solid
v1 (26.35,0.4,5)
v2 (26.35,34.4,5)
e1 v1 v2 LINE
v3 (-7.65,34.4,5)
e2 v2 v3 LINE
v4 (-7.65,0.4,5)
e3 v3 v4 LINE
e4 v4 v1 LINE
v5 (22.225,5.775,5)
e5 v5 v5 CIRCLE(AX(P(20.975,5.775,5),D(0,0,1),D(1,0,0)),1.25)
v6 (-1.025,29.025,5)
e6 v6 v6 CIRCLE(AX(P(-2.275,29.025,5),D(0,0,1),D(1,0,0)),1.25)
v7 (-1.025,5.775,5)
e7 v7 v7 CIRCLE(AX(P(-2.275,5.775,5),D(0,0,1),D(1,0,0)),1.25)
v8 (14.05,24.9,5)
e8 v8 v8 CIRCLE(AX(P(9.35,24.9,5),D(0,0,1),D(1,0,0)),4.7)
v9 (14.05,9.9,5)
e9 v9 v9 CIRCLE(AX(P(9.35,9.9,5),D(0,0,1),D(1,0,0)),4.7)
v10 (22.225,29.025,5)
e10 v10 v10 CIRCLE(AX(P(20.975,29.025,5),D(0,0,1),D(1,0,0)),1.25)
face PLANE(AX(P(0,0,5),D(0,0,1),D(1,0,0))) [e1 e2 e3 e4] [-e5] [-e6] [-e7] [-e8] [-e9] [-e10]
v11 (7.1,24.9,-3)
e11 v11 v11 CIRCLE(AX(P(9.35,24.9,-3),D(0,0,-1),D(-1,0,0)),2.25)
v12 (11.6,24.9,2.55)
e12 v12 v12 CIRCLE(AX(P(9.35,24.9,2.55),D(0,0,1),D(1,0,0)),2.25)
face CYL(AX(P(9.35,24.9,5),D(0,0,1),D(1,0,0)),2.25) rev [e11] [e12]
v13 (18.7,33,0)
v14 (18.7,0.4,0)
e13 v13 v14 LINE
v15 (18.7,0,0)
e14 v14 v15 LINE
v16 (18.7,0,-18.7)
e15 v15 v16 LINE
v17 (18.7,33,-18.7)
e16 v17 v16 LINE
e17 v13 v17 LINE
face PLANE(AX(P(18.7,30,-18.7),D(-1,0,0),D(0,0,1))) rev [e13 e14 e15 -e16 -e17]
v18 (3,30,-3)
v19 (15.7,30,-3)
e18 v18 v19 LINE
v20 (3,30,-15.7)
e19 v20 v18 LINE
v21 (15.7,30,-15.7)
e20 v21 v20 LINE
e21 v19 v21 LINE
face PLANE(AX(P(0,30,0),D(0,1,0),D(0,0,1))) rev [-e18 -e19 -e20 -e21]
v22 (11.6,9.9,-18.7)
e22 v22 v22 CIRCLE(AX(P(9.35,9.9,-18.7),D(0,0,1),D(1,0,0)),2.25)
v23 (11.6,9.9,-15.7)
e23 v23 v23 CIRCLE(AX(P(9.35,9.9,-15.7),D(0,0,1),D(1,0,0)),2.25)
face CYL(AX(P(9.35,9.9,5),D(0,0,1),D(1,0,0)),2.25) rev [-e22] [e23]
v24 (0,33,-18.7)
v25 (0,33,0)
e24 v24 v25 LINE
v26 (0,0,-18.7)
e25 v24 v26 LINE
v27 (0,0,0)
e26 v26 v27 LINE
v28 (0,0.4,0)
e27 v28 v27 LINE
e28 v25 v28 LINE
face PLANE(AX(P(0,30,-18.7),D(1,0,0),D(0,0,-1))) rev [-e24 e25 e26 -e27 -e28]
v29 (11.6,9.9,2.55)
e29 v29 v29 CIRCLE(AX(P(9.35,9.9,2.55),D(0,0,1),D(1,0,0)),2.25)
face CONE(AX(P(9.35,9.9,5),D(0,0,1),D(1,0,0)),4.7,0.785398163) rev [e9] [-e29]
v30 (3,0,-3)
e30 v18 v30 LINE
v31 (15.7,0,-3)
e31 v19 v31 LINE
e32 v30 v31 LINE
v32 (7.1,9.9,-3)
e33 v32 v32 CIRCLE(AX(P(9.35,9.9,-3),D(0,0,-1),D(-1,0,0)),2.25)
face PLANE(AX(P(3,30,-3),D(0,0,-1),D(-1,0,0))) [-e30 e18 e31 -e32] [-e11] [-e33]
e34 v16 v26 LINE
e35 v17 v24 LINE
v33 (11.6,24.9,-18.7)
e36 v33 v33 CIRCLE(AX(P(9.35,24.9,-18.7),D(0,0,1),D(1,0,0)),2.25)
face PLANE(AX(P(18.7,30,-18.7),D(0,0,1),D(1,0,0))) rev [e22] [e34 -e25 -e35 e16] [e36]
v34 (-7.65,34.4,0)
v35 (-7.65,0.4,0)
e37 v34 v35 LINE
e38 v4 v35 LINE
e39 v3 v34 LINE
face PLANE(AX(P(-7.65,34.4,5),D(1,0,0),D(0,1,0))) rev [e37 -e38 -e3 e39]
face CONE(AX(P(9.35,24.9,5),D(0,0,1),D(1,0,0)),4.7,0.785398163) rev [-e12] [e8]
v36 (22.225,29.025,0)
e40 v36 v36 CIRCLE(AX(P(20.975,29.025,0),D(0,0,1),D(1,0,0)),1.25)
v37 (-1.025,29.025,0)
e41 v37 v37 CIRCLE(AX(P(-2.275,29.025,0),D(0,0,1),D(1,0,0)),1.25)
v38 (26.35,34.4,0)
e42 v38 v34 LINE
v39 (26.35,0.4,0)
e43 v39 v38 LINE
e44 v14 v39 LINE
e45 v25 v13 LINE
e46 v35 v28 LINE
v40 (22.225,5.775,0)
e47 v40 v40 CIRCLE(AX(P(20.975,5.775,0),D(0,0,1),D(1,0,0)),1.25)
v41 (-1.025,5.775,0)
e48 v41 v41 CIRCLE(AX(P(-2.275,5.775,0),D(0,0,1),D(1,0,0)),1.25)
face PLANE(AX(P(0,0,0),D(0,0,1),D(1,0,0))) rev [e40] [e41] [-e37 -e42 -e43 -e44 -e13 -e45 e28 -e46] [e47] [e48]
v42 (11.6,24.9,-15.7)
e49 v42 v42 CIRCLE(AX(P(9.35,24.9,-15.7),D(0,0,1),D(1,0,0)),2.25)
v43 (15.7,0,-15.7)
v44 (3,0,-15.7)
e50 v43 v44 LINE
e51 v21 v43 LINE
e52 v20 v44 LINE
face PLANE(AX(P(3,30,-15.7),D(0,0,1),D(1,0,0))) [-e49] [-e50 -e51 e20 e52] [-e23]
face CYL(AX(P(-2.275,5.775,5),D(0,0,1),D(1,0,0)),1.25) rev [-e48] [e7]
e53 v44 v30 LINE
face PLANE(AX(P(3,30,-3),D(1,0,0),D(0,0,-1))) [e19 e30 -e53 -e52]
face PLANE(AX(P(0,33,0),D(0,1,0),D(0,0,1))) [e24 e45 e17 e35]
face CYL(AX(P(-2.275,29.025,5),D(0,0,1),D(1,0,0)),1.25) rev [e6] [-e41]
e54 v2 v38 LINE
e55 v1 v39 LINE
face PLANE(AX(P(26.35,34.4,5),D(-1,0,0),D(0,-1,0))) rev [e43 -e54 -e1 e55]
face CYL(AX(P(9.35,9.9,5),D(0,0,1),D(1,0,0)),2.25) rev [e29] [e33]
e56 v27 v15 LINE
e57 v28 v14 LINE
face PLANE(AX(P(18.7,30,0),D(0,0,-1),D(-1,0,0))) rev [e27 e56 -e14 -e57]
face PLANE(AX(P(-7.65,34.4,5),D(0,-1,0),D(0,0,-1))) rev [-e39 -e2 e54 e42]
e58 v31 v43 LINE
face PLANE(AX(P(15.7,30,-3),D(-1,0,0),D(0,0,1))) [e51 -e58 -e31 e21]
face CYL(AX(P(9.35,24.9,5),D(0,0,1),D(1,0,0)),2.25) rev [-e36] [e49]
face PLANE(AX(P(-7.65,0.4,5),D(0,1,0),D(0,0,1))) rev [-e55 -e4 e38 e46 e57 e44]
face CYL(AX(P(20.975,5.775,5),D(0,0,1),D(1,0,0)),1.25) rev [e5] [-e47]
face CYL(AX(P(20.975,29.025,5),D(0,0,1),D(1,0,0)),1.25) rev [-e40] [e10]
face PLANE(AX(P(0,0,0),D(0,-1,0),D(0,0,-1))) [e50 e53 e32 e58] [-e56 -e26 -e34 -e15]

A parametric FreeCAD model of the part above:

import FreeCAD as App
import Part
import Sketcher
Q = App.Units.Quantity


def add_polygon(sketch, points):
    """Adds a closed chain of lines whose ends are joined by coincident constraints."""
    first, n = sketch.GeometryCount, len(points)
    for a, b in zip(points, points[1:] + points[:1]):
        sketch.addGeometry(Part.LineSegment(App.Vector(*a, 0), App.Vector(*b, 0)), False)
    for i in range(n):
        sketch.addConstraint(Sketcher.Constraint("Coincident", first + i, 2, first + (i + 1) % n, 1))

doc = App.newDocument("Part")
body = doc.addObject("PartDesign::Body", "Body")

# Sketch on XZ plane
sketch1 = body.newObject("Sketcher::SketchObject", "Sketch")
sketch1.AttachmentSupport = (doc.getObject("XZ_Plane"), [""])
sketch1.MapMode = "FlatFace"
add_polygon(sketch1, [(0, -18.7), (0, 0), (18.7, 0), (18.7, -18.7)])  # lines 0-3
add_polygon(sketch1, [(15.7, -3), (3, -3), (3, -15.7), (15.7, -15.7)])  # lines 4-7
sketch1.addConstraint([
    Sketcher.Constraint("Vertical", 0),
    Sketcher.Constraint("Horizontal", 1),
    Sketcher.Constraint("Vertical", 2),
    Sketcher.Constraint("Horizontal", 3),
    Sketcher.Constraint("Horizontal", 4),
    Sketcher.Constraint("Vertical", 5),
    Sketcher.Constraint("Horizontal", 6),
    Sketcher.Constraint("Vertical", 7),
    Sketcher.Constraint("Coincident", 0, 2, -1, 1),
    Sketcher.Constraint("Equal", 3, 0),
    Sketcher.Constraint("Equal", 6, 5),
    Sketcher.Constraint("DistanceX", 1, 1, 1, 2, Q("18.7 mm")),
    Sketcher.Constraint("DistanceX", 4, 2, 4, 1, Q("12.7 mm")),
    Sketcher.Constraint("DistanceX", -1, 1, 4, 2, Q("3 mm")),
    Sketcher.Constraint("DistanceY", 4, 2, -1, 1, Q("3 mm")),
])
pad1 = body.newObject("PartDesign::Pad", "Pad")
pad1.Profile = sketch1
pad1.Length = 30
pad1.Reversed = True

# Sketch on XZ plane
sketch2 = body.newObject("Sketcher::SketchObject", "Sketch001")
sketch2.AttachmentSupport = (doc.getObject("XZ_Plane"), [""])
sketch2.MapMode = "FlatFace"
sketch2.AttachmentOffset = App.Placement(App.Vector(0, 0, -30), App.Rotation())
add_polygon(sketch2, [(0, -18.7), (0, 0), (18.7, 0), (18.7, -18.7)])  # lines 0-3
sketch2.addConstraint([
    Sketcher.Constraint("Vertical", 0),
    Sketcher.Constraint("Horizontal", 1),
    Sketcher.Constraint("Vertical", 2),
    Sketcher.Constraint("Horizontal", 3),
    Sketcher.Constraint("Coincident", 0, 2, -1, 1),
    Sketcher.Constraint("Equal", 3, 0),
    Sketcher.Constraint("DistanceX", 1, 1, 1, 2, Q("18.7 mm")),
])
pad2 = body.newObject("PartDesign::Pad", "Pad001")
pad2.Profile = sketch2
pad2.Length = 3
pad2.Reversed = True

# Sketch on XY plane
sketch3 = body.newObject("Sketcher::SketchObject", "Sketch002")
sketch3.AttachmentSupport = (doc.getObject("XY_Plane"), [""])
sketch3.MapMode = "FlatFace"
add_polygon(sketch3, [(-7.65, 34.4), (-7.65, 0.4), (26.35, 0.4), (26.35, 34.4)])  # lines 0-3
sketch3.addConstraint([
    Sketcher.Constraint("Vertical", 0),
    Sketcher.Constraint("Horizontal", 1),
    Sketcher.Constraint("Vertical", 2),
    Sketcher.Constraint("Horizontal", 3),
    Sketcher.Constraint("Equal", 3, 0),
    Sketcher.Constraint("DistanceX", 1, 1, 1, 2, Q("34 mm")),
    Sketcher.Constraint("DistanceY", -1, 1, 0, 2, Q("0.4 mm")),
    Sketcher.Constraint("DistanceX", 0, 2, -1, 1, Q("7.65 mm")),
])
pad3 = body.newObject("PartDesign::Pad", "Pad002")
pad3.Profile = sketch3
pad3.Length = 5

# Sketch on XY plane
sketch4 = body.newObject("Sketcher::SketchObject", "Sketch003")
sketch4.AttachmentSupport = (doc.getObject("XY_Plane"), [""])
sketch4.MapMode = "FlatFace"
sketch4.AttachmentOffset = App.Placement(App.Vector(0, 0, 5), App.Rotation())
sketch4.addGeometry([
    Part.Circle(App.Vector(9.35, 24.9, 0), App.Vector(0, 0, 1), 2.25),
    Part.Circle(App.Vector(9.35, 9.9, 0), App.Vector(0, 0, 1), 2.25),
], False)
sketch4.addConstraint([
    Sketcher.Constraint("Equal", 0, 1),
    Sketcher.Constraint("Vertical", 0, 3, 1, 3),
    Sketcher.Constraint("Diameter", 0, Q("4.5 mm")),
    Sketcher.Constraint("DistanceY", 1, 3, 0, 3, Q("15 mm")),
    Sketcher.Constraint("DistanceY", -1, 1, 0, 3, Q("24.9 mm")),
    Sketcher.Constraint("DistanceX", -1, 1, 0, 3, Q("9.35 mm")),
])
doc.recompute()
hole = body.newObject("PartDesign::Hole", "Hole")
hole.Profile = sketch4
hole.ThreadType = "None"
hole.Diameter = 4.5
hole.DepthType = "ThroughAll"
hole.HoleCutType = "Countersink"
hole.HoleCutDiameter = 9.4
hole.HoleCutCountersinkAngle = 90

# Sketch on XY plane
sketch5 = body.newObject("Sketcher::SketchObject", "Sketch004")
sketch5.AttachmentSupport = (doc.getObject("XY_Plane"), [""])
sketch5.MapMode = "FlatFace"
sketch5.AttachmentOffset = App.Placement(App.Vector(0, 0, 5), App.Rotation())
sketch5.addGeometry([
    Part.Circle(App.Vector(-2.275, 29.025, 0), App.Vector(0, 0, 1), 1.25),
    Part.Circle(App.Vector(20.975, 29.025, 0), App.Vector(0, 0, 1), 1.25),
    Part.Circle(App.Vector(-2.275, 5.775, 0), App.Vector(0, 0, 1), 1.25),
    Part.Circle(App.Vector(20.975, 5.775, 0), App.Vector(0, 0, 1), 1.25),
], False)
sketch5.addConstraint([
    Sketcher.Constraint("Equal", 0, 1),
    Sketcher.Constraint("Equal", 1, 2),
    Sketcher.Constraint("Equal", 2, 3),
    Sketcher.Constraint("Horizontal", 0, 3, 1, 3),
    Sketcher.Constraint("Horizontal", 2, 3, 3, 3),
    Sketcher.Constraint("Vertical", 0, 3, 2, 3),
    Sketcher.Constraint("Vertical", 1, 3, 3, 3),
    Sketcher.Constraint("Diameter", 0, Q("2.5 mm")),
    Sketcher.Constraint("DistanceX", 0, 3, 1, 3, Q("23.25 mm")),
    Sketcher.Constraint("DistanceY", 2, 3, 0, 3, Q("23.25 mm")),
    Sketcher.Constraint("DistanceX", 0, 3, -1, 1, Q("2.275 mm")),
    Sketcher.Constraint("DistanceY", -1, 1, 0, 3, Q("29.025 mm")),
])
doc.recompute()
hole2 = body.newObject("PartDesign::Hole", "Hole001")
hole2.Profile = sketch5
hole2.ThreadType = "None"
hole2.Diameter = 2.5
hole2.DepthType = "ThroughAll"

doc.recompute()
